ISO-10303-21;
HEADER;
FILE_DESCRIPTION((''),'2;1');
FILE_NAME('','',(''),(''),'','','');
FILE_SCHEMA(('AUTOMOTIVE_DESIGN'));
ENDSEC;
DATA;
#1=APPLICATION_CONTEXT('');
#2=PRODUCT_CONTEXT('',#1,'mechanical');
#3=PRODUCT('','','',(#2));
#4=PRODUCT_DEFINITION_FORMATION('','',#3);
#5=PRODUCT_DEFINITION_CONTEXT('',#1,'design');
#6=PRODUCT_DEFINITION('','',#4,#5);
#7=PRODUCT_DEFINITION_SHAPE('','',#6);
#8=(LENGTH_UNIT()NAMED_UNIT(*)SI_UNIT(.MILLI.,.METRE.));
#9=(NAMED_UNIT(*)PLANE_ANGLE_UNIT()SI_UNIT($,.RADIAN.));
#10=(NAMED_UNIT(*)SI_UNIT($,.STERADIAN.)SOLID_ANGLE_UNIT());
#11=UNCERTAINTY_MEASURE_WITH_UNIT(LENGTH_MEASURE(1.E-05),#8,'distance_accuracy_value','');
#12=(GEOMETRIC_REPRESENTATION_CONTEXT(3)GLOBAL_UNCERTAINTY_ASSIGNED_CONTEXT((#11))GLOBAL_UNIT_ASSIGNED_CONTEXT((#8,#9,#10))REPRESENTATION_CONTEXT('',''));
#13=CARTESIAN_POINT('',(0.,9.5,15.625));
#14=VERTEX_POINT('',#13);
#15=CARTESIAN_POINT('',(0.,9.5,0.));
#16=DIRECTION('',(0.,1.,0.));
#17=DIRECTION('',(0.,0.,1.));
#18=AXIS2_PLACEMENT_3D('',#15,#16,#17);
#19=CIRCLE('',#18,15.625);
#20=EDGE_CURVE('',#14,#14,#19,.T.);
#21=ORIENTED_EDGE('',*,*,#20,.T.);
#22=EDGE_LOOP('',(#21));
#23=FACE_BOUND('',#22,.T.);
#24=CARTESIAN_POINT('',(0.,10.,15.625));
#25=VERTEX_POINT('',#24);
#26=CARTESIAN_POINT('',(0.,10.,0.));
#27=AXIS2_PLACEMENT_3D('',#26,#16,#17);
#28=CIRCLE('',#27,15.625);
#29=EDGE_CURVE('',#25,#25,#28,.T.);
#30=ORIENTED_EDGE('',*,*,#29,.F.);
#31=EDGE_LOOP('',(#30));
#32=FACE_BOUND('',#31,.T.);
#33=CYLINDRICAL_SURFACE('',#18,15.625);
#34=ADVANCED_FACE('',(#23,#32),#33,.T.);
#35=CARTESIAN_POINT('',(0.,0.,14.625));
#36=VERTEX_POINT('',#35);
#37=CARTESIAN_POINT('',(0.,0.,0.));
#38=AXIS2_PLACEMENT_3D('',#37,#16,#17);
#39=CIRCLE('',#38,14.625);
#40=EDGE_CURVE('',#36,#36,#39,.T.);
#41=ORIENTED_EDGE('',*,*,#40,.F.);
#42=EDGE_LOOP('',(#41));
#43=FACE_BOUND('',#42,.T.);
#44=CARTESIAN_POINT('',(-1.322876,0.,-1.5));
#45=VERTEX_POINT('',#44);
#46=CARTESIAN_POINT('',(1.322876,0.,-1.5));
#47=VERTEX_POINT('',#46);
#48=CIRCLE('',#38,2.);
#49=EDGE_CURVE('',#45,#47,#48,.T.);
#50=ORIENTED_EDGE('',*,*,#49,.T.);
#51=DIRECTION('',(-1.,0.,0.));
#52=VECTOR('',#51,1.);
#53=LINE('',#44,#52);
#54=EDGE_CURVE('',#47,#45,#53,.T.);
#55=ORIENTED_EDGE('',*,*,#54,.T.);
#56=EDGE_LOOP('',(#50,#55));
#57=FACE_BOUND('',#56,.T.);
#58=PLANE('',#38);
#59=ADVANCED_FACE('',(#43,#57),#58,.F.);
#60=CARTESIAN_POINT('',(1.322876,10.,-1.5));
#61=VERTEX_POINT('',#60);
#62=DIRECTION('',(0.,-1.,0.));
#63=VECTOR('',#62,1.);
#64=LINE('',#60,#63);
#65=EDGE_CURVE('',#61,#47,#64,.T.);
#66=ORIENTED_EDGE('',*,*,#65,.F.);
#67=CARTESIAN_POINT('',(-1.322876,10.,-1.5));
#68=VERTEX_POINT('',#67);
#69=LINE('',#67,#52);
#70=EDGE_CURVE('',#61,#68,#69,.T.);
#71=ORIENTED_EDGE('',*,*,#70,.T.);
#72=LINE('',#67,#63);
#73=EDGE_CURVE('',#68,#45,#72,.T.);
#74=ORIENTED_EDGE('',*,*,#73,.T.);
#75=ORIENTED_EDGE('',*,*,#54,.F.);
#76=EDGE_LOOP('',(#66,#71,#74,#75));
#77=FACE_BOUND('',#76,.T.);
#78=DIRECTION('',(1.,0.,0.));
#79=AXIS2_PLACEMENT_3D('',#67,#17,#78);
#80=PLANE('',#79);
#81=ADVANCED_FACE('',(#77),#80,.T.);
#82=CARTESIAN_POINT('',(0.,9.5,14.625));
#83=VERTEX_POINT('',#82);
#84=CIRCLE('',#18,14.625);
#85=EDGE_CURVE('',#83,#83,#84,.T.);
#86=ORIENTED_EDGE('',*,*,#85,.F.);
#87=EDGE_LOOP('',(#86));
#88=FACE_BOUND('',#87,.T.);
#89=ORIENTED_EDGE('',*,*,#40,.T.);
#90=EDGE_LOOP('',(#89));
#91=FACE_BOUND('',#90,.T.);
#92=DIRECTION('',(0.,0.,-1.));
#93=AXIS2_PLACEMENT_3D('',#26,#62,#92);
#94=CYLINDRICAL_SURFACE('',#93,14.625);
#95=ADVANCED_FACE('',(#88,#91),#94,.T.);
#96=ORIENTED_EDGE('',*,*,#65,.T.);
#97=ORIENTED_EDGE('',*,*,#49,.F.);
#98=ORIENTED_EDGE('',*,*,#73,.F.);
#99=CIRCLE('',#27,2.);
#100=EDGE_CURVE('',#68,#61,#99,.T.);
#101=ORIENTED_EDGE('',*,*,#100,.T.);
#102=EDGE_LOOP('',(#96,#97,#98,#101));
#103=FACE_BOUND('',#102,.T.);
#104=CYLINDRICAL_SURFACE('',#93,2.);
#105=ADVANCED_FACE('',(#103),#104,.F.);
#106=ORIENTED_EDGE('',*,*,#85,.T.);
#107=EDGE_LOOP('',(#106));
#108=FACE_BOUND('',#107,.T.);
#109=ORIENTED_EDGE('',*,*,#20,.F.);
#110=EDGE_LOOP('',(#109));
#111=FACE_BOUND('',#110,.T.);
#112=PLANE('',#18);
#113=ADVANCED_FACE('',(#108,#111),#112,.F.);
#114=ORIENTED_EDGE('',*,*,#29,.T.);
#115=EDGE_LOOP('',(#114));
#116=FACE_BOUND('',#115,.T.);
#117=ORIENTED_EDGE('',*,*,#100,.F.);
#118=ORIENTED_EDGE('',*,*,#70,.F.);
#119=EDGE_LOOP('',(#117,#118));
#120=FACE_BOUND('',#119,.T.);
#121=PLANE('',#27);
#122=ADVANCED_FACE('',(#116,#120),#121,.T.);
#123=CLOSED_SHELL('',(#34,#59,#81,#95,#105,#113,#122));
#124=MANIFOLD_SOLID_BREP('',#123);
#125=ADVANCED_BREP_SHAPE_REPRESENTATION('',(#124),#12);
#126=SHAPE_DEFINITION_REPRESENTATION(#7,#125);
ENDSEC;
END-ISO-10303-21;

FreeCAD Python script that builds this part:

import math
import FreeCAD as App
import Part
import Sketcher

V = App.Vector

doc = App.newDocument("Part")
body = doc.addObject("PartDesign::Body", "Body")

# Sketch on XZ plane
sketch1 = body.newObject("Sketcher::SketchObject", "Sketch")
sketch1.AttachmentSupport = (doc.getObject("XZ_Plane"), [""])
sketch1.MapMode = "FlatFace"
sketch1.addGeometry([
    Part.Circle(V(0, 0, 0), V(0, 0, 1), 14.6),
    Part.ArcOfCircle(Part.Circle(V(0, 0, 0), V(0, 0, 1), 2), math.radians(-49), math.radians(229)),
    Part.LineSegment(V(-1.3, -1.5, 0), V(1.3, -1.5, 0)),
], False)
sketch1.addConstraint([
    Sketcher.Constraint("Coincident", 1, 1, 2, 2),
    Sketcher.Constraint("Coincident", 2, 1, 1, 2),
    Sketcher.Constraint("Horizontal", 2),
    Sketcher.Constraint("Coincident", 0, 3, -1, 1),
    Sketcher.Constraint("Coincident", 1, 3, -1, 1),
    Sketcher.Constraint("Radius", 1, 2.0),
    Sketcher.Constraint("Diameter", 0, 29.25),
    Sketcher.Constraint("DistanceY", 1, 1, -1, 1, 1.5),
])
pad1 = body.newObject("PartDesign::Pad", "Pad")
pad1.Profile = sketch1
pad1.Length = 10
pad1.Reversed = True

# Sketch on XZ plane
sketch2 = body.newObject("Sketcher::SketchObject", "Sketch001")
sketch2.AttachmentSupport = (doc.getObject("XZ_Plane"), [""])
sketch2.MapMode = "FlatFace"
sketch2.AttachmentOffset = App.Placement(V(0, 0, -9.5), App.Rotation())
sketch2.addGeometry([
    Part.Circle(V(0, 0, 0), V(0, 0, 1), 15.6),
    Part.ArcOfCircle(Part.Circle(V(0, 0, 0), V(0, 0, 1), 2), math.radians(-49), math.radians(229)),
    Part.LineSegment(V(-1.3, -1.5, 0), V(1.3, -1.5, 0)),
], False)
sketch2.addConstraint([
    Sketcher.Constraint("Coincident", 1, 1, 2, 2),
    Sketcher.Constraint("Coincident", 2, 1, 1, 2),
    Sketcher.Constraint("Horizontal", 2),
    Sketcher.Constraint("Coincident", 0, 3, -1, 1),
    Sketcher.Constraint("Coincident", 1, 3, -1, 1),
    Sketcher.Constraint("Radius", 1, 2.0),
    Sketcher.Constraint("Diameter", 0, 31.25),
    Sketcher.Constraint("DistanceY", 1, 1, -1, 1, 1.5),
])
pad2 = body.newObject("PartDesign::Pad", "Pad001")
pad2.Profile = sketch2
pad2.Length = 0.5
pad2.Reversed = True

doc.recompute()
